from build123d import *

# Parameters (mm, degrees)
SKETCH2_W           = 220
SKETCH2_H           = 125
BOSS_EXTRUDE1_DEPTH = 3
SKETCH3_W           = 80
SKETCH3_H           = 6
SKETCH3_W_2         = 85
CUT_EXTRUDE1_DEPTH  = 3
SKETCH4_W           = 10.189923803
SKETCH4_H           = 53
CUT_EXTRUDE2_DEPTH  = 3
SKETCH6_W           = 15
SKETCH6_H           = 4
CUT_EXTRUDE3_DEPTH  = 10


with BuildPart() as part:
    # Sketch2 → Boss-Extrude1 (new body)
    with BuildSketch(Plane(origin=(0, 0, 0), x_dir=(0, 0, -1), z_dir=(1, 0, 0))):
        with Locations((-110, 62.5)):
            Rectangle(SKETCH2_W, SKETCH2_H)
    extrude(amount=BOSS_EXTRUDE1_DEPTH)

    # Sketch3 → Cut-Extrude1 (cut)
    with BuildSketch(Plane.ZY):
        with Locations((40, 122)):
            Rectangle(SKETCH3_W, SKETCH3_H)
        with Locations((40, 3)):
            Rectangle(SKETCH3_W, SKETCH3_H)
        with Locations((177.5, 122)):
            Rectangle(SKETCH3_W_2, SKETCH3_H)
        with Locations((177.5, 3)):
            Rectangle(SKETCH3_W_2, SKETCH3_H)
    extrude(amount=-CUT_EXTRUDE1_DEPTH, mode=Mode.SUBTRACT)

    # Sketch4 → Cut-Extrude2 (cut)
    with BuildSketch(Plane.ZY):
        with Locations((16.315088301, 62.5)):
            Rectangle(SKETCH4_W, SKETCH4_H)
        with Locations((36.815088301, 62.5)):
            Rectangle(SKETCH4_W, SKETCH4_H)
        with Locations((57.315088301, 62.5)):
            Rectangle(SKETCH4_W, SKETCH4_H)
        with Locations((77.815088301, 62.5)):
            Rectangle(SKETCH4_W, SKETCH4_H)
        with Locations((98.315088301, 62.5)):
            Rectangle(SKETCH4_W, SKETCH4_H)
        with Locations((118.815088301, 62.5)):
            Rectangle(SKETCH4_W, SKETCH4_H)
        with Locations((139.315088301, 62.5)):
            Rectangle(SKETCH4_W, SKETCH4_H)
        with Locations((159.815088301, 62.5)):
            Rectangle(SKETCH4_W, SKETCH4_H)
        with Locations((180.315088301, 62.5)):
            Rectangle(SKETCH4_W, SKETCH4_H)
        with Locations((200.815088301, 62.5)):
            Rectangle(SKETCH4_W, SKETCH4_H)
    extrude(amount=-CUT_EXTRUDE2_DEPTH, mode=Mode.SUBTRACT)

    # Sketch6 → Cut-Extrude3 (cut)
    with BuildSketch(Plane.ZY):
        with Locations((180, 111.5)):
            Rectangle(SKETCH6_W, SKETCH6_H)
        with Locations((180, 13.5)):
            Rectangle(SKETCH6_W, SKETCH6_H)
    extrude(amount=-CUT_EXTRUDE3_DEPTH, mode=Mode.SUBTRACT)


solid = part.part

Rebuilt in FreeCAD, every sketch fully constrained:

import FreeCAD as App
import Part
import Sketcher
Q = App.Units.Quantity

doc = App.newDocument("Part")
body = doc.addObject("PartDesign::Body", "Body")

sketch1 = body.newObject("Sketcher::SketchObject", "Sketch")
sketch1.AttachmentSupport = (doc.getObject("YZ_Plane"), [""])
sketch1.MapMode = "FlatFace"
sketch1.addGeometry([
    Part.LineSegment(App.Vector(125, 220, 0), App.Vector(0, 220, 0)),
    Part.LineSegment(App.Vector(0, 220, 0), App.Vector(0, 0, 0)),
    Part.LineSegment(App.Vector(0, 0, 0), App.Vector(125, 0, 0)),
    Part.LineSegment(App.Vector(125, 0, 0), App.Vector(125, 220, 0)),
], False)
sketch1.addConstraint([
    Sketcher.Constraint("Coincident", 0, 2, 1, 1),
    Sketcher.Constraint("Coincident", 1, 2, 2, 1),
    Sketcher.Constraint("Coincident", 2, 2, 3, 1),
    Sketcher.Constraint("Coincident", 3, 2, 0, 1),
    Sketcher.Constraint("Horizontal", 0),
    Sketcher.Constraint("Vertical", 1),
    Sketcher.Constraint("Horizontal", 2),
    Sketcher.Constraint("Vertical", 3),
    Sketcher.Constraint("Coincident", 1, 2, -1, 1),
    Sketcher.Constraint("DistanceX", 0, 2, 0, 1, Q("125 mm")),
    Sketcher.Constraint("DistanceY", 1, 2, 1, 1, Q("220 mm")),
])
pad1 = body.newObject("PartDesign::Pad", "Pad")
pad1.Profile = sketch1
pad1.Length = 3

sketch2 = body.newObject("Sketcher::SketchObject", "Sketch001")
sketch2.AttachmentSupport = (doc.getObject("YZ_Plane"), [""])
sketch2.MapMode = "FlatFace"
sketch2.addGeometry([
    Part.LineSegment(App.Vector(125, 0, 0), App.Vector(119, 0, 0)),
    Part.LineSegment(App.Vector(119, 0, 0), App.Vector(119, 80, 0)),
    Part.LineSegment(App.Vector(119, 80, 0), App.Vector(125, 80, 0)),
    Part.LineSegment(App.Vector(125, 80, 0), App.Vector(125, 0, 0)),
    Part.LineSegment(App.Vector(6, 0, 0), App.Vector(0, 0, 0)),
    Part.LineSegment(App.Vector(0, 0, 0), App.Vector(0, 80, 0)),
    Part.LineSegment(App.Vector(0, 80, 0), App.Vector(6, 80, 0)),
    Part.LineSegment(App.Vector(6, 80, 0), App.Vector(6, 0, 0)),
    Part.LineSegment(App.Vector(125, 135, 0), App.Vector(119, 135, 0)),
    Part.LineSegment(App.Vector(119, 135, 0), App.Vector(119, 220, 0)),
    Part.LineSegment(App.Vector(119, 220, 0), App.Vector(125, 220, 0)),
    Part.LineSegment(App.Vector(125, 220, 0), App.Vector(125, 135, 0)),
    Part.LineSegment(App.Vector(6, 135, 0), App.Vector(0, 135, 0)),
    Part.LineSegment(App.Vector(0, 135, 0), App.Vector(0, 220, 0)),
    Part.LineSegment(App.Vector(0, 220, 0), App.Vector(6, 220, 0)),
    Part.LineSegment(App.Vector(6, 220, 0), App.Vector(6, 135, 0)),
], False)
sketch2.addConstraint([
    Sketcher.Constraint("Coincident", 0, 2, 1, 1),
    Sketcher.Constraint("Coincident", 1, 2, 2, 1),
    Sketcher.Constraint("Coincident", 2, 2, 3, 1),
    Sketcher.Constraint("Coincident", 3, 2, 0, 1),
    Sketcher.Constraint("Coincident", 4, 2, 5, 1),
    Sketcher.Constraint("Coincident", 5, 2, 6, 1),
    Sketcher.Constraint("Coincident", 6, 2, 7, 1),
    Sketcher.Constraint("Coincident", 7, 2, 4, 1),
    Sketcher.Constraint("Coincident", 8, 2, 9, 1),
    Sketcher.Constraint("Coincident", 9, 2, 10, 1),
    Sketcher.Constraint("Coincident", 10, 2, 11, 1),
    Sketcher.Constraint("Coincident", 11, 2, 8, 1),
    Sketcher.Constraint("Coincident", 12, 2, 13, 1),
    Sketcher.Constraint("Coincident", 13, 2, 14, 1),
    Sketcher.Constraint("Coincident", 14, 2, 15, 1),
    Sketcher.Constraint("Coincident", 15, 2, 12, 1),
    Sketcher.Constraint("Horizontal", 0),
    Sketcher.Constraint("Vertical", 1),
    Sketcher.Constraint("Horizontal", 2),
    Sketcher.Constraint("Vertical", 3),
    Sketcher.Constraint("Horizontal", 4),
    Sketcher.Constraint("Vertical", 5),
    Sketcher.Constraint("Horizontal", 6),
    Sketcher.Constraint("Vertical", 7),
    Sketcher.Constraint("Horizontal", 8),
    Sketcher.Constraint("Vertical", 9),
    Sketcher.Constraint("Horizontal", 10),
    Sketcher.Constraint("Vertical", 11),
    Sketcher.Constraint("Horizontal", 12),
    Sketcher.Constraint("Vertical", 13),
    Sketcher.Constraint("Horizontal", 14),
    Sketcher.Constraint("Vertical", 15),
    Sketcher.Constraint("Coincident", 4, 2, -1, 1),
    Sketcher.Constraint("PointOnObject", 0, 2, -1),
    Sketcher.Constraint("PointOnObject", 12, 2, -2),
    Sketcher.Constraint("Horizontal", 2, 2, 5, 2),
    Sketcher.Constraint("Horizontal", 11, 2, 12, 2),
    Sketcher.Constraint("Horizontal", 10, 2, 13, 2),
    Sketcher.Constraint("Vertical", 1, 2, 8, 2),
    Sketcher.Constraint("Vertical", 3, 2, 10, 2),
    Sketcher.Constraint("Vertical", 7, 2, 14, 2),
    Sketcher.Constraint("Equal", 2, 4),
    Sketcher.Constraint("DistanceX", 0, 2, 0, 1, Q("6 mm")),
    Sketcher.Constraint("DistanceY", 1, 1, 1, 2, Q("80 mm")),
    Sketcher.Constraint("DistanceY", 9, 1, 9, 2, Q("85 mm")),
    Sketcher.Constraint("DistanceX", -1, 1, 0, 2, Q("119 mm")),
    Sketcher.Constraint("DistanceY", -1, 1, 8, 2, Q("135 mm")),
])
pocket1 = body.newObject("PartDesign::Pocket", "Pocket")
pocket1.Profile = sketch2
pocket1.Length = 3
pocket1.Reversed = True

sketch3 = body.newObject("Sketcher::SketchObject", "Sketch002")
sketch3.AttachmentSupport = (doc.getObject("YZ_Plane"), [""])
sketch3.MapMode = "FlatFace"
sketch3.addGeometry([
    Part.LineSegment(App.Vector(89, 11, 0), App.Vector(36, 11, 0)),
    Part.LineSegment(App.Vector(36, 11, 0), App.Vector(36, 21, 0)),
    Part.LineSegment(App.Vector(36, 21, 0), App.Vector(89, 21, 0)),
    Part.LineSegment(App.Vector(89, 21, 0), App.Vector(89, 11, 0)),
    Part.LineSegment(App.Vector(89, 32, 0), App.Vector(36, 32, 0)),
    Part.LineSegment(App.Vector(36, 32, 0), App.Vector(36, 42, 0)),
    Part.LineSegment(App.Vector(36, 42, 0), App.Vector(89, 42, 0)),
    Part.LineSegment(App.Vector(89, 42, 0), App.Vector(89, 32, 0)),
    Part.LineSegment(App.Vector(89, 52, 0), App.Vector(36, 52, 0)),
    Part.LineSegment(App.Vector(36, 52, 0), App.Vector(36, 62, 0)),
    Part.LineSegment(App.Vector(36, 62, 0), App.Vector(89, 62, 0)),
    Part.LineSegment(App.Vector(89, 62, 0), App.Vector(89, 52, 0)),
    Part.LineSegment(App.Vector(89, 73, 0), App.Vector(36, 73, 0)),
    Part.LineSegment(App.Vector(36, 73, 0), App.Vector(36, 83, 0)),
    Part.LineSegment(App.Vector(36, 83, 0), App.Vector(89, 83, 0)),
    Part.LineSegment(App.Vector(89, 83, 0), App.Vector(89, 73, 0)),
    Part.LineSegment(App.Vector(89, 93, 0), App.Vector(36, 93, 0)),
    Part.LineSegment(App.Vector(36, 93, 0), App.Vector(36, 103, 0)),
    Part.LineSegment(App.Vector(36, 103, 0), App.Vector(89, 103, 0)),
    Part.LineSegment(App.Vector(89, 103, 0), App.Vector(89, 93, 0)),
    Part.LineSegment(App.Vector(89, 114, 0), App.Vector(36, 114, 0)),
    Part.LineSegment(App.Vector(36, 114, 0), App.Vector(36, 124, 0)),
    Part.LineSegment(App.Vector(36, 124, 0), App.Vector(89, 124, 0)),
    Part.LineSegment(App.Vector(89, 124, 0), App.Vector(89, 114, 0)),
    Part.LineSegment(App.Vector(89, 134, 0), App.Vector(36, 134, 0)),
    Part.LineSegment(App.Vector(36, 134, 0), App.Vector(36, 144, 0)),
    Part.LineSegment(App.Vector(36, 144, 0), App.Vector(89, 144, 0)),
    Part.LineSegment(App.Vector(89, 144, 0), App.Vector(89, 134, 0)),
    Part.LineSegment(App.Vector(89, 155, 0), App.Vector(36, 155, 0)),
    Part.LineSegment(App.Vector(36, 155, 0), App.Vector(36, 165, 0)),
    Part.LineSegment(App.Vector(36, 165, 0), App.Vector(89, 165, 0)),
    Part.LineSegment(App.Vector(89, 165, 0), App.Vector(89, 155, 0)),
    Part.LineSegment(App.Vector(89, 175, 0), App.Vector(36, 175, 0)),
    Part.LineSegment(App.Vector(36, 175, 0), App.Vector(36, 185, 0)),
    Part.LineSegment(App.Vector(36, 185, 0), App.Vector(89, 185, 0)),
    Part.LineSegment(App.Vector(89, 185, 0), App.Vector(89, 175, 0)),
    Part.LineSegment(App.Vector(89, 196, 0), App.Vector(36, 196, 0)),
    Part.LineSegment(App.Vector(36, 196, 0), App.Vector(36, 206, 0)),
    Part.LineSegment(App.Vector(36, 206, 0), App.Vector(89, 206, 0)),
    Part.LineSegment(App.Vector(89, 206, 0), App.Vector(89, 196, 0)),
], False)
sketch3.addConstraint([
    Sketcher.Constraint("Coincident", 0, 2, 1, 1),
    Sketcher.Constraint("Coincident", 1, 2, 2, 1),
    Sketcher.Constraint("Coincident", 2, 2, 3, 1),
    Sketcher.Constraint("Coincident", 3, 2, 0, 1),
    Sketcher.Constraint("Coincident", 4, 2, 5, 1),
    Sketcher.Constraint("Coincident", 5, 2, 6, 1),
    Sketcher.Constraint("Coincident", 6, 2, 7, 1),
    Sketcher.Constraint("Coincident", 7, 2, 4, 1),
    Sketcher.Constraint("Coincident", 8, 2, 9, 1),
    Sketcher.Constraint("Coincident", 9, 2, 10, 1),
    Sketcher.Constraint("Coincident", 10, 2, 11, 1),
    Sketcher.Constraint("Coincident", 11, 2, 8, 1),
    Sketcher.Constraint("Coincident", 12, 2, 13, 1),
    Sketcher.Constraint("Coincident", 13, 2, 14, 1),
    Sketcher.Constraint("Coincident", 14, 2, 15, 1),
    Sketcher.Constraint("Coincident", 15, 2, 12, 1),
    Sketcher.Constraint("Coincident", 16, 2, 17, 1),
    Sketcher.Constraint("Coincident", 17, 2, 18, 1),
    Sketcher.Constraint("Coincident", 18, 2, 19, 1),
    Sketcher.Constraint("Coincident", 19, 2, 16, 1),
    Sketcher.Constraint("Coincident", 20, 2, 21, 1),
    Sketcher.Constraint("Coincident", 21, 2, 22, 1),
    Sketcher.Constraint("Coincident", 22, 2, 23, 1),
    Sketcher.Constraint("Coincident", 23, 2, 20, 1),
    Sketcher.Constraint("Coincident", 24, 2, 25, 1),
    Sketcher.Constraint("Coincident", 25, 2, 26, 1),
    Sketcher.Constraint("Coincident", 26, 2, 27, 1),
    Sketcher.Constraint("Coincident", 27, 2, 24, 1),
    Sketcher.Constraint("Coincident", 28, 2, 29, 1),
    Sketcher.Constraint("Coincident", 29, 2, 30, 1),
    Sketcher.Constraint("Coincident", 30, 2, 31, 1),
    Sketcher.Constraint("Coincident", 31, 2, 28, 1),
    Sketcher.Constraint("Coincident", 32, 2, 33, 1),
    Sketcher.Constraint("Coincident", 33, 2, 34, 1),
    Sketcher.Constraint("Coincident", 34, 2, 35, 1),
    Sketcher.Constraint("Coincident", 35, 2, 32, 1),
    Sketcher.Constraint("Coincident", 36, 2, 37, 1),
    Sketcher.Constraint("Coincident", 37, 2, 38, 1),
    Sketcher.Constraint("Coincident", 38, 2, 39, 1),
    Sketcher.Constraint("Coincident", 39, 2, 36, 1),
    Sketcher.Constraint("Horizontal", 0),
    Sketcher.Constraint("Vertical", 1),
    Sketcher.Constraint("Horizontal", 2),
    Sketcher.Constraint("Vertical", 3),
    Sketcher.Constraint("Horizontal", 4),
    Sketcher.Constraint("Vertical", 5),
    Sketcher.Constraint("Horizontal", 6),
    Sketcher.Constraint("Vertical", 7),
    Sketcher.Constraint("Horizontal", 8),
    Sketcher.Constraint("Vertical", 9),
    Sketcher.Constraint("Horizontal", 10),
    Sketcher.Constraint("Vertical", 11),
    Sketcher.Constraint("Horizontal", 12),
    Sketcher.Constraint("Vertical", 13),
    Sketcher.Constraint("Horizontal", 14),
    Sketcher.Constraint("Vertical", 15),
    Sketcher.Constraint("Horizontal", 16),
    Sketcher.Constraint("Vertical", 17),
    Sketcher.Constraint("Horizontal", 18),
    Sketcher.Constraint("Vertical", 19),
    Sketcher.Constraint("Horizontal", 20),
    Sketcher.Constraint("Vertical", 21),
    Sketcher.Constraint("Horizontal", 22),
    Sketcher.Constraint("Vertical", 23),
    Sketcher.Constraint("Horizontal", 24),
    Sketcher.Constraint("Vertical", 25),
    Sketcher.Constraint("Horizontal", 26),
    Sketcher.Constraint("Vertical", 27),
    Sketcher.Constraint("Horizontal", 28),
    Sketcher.Constraint("Vertical", 29),
    Sketcher.Constraint("Horizontal", 30),
    Sketcher.Constraint("Vertical", 31),
    Sketcher.Constraint("Horizontal", 32),
    Sketcher.Constraint("Vertical", 33),
    Sketcher.Constraint("Horizontal", 34),
    Sketcher.Constraint("Vertical", 35),
    Sketcher.Constraint("Horizontal", 36),
    Sketcher.Constraint("Vertical", 37),
    Sketcher.Constraint("Horizontal", 38),
    Sketcher.Constraint("Vertical", 39),
    Sketcher.Constraint("Vertical", 1, 2, 4, 2),
    Sketcher.Constraint("Vertical", 3, 2, 6, 2),
    Sketcher.Constraint("Vertical", 5, 2, 8, 2),
    Sketcher.Constraint("Vertical", 7, 2, 10, 2),
    Sketcher.Constraint("Vertical", 9, 2, 12, 2),
    Sketcher.Constraint("Vertical", 11, 2, 14, 2),
    Sketcher.Constraint("Vertical", 13, 2, 16, 2),
    Sketcher.Constraint("Vertical", 15, 2, 18, 2),
    Sketcher.Constraint("Vertical", 17, 2, 20, 2),
    Sketcher.Constraint("Vertical", 19, 2, 22, 2),
    Sketcher.Constraint("Vertical", 21, 2, 24, 2),
    Sketcher.Constraint("Vertical", 23, 2, 26, 2),
    Sketcher.Constraint("Vertical", 25, 2, 28, 2),
    Sketcher.Constraint("Vertical", 27, 2, 30, 2),
    Sketcher.Constraint("Vertical", 29, 2, 32, 2),
    Sketcher.Constraint("Vertical", 31, 2, 34, 2),
    Sketcher.Constraint("Vertical", 33, 2, 36, 2),
    Sketcher.Constraint("Vertical", 35, 2, 38, 2),
    Sketcher.Constraint("Equal", 3, 5),
    Sketcher.Constraint("Equal", 7, 9),
    Sketcher.Constraint("Equal", 11, 13),
    Sketcher.Constraint("Equal", 15, 17),
    Sketcher.Constraint("Equal", 19, 21),
    Sketcher.Constraint("Equal", 23, 25),
    Sketcher.Constraint("Equal", 27, 29),
    Sketcher.Constraint("Equal", 31, 33),
    Sketcher.Constraint("Equal", 35, 37),
    Sketcher.Constraint("DistanceX", 0, 2, 0, 1, Q("53 mm")),
    Sketcher.Constraint("DistanceX", -1, 1, 0, 2, Q("36 mm")),
    Sketcher.Constraint("DistanceY", 0, 2, 8, 2, Q("41 mm")),
    Sketcher.Constraint("DistanceY", 4, 2, 12, 2, Q("41 mm")),
    Sketcher.Constraint("DistanceY", 8, 2, 16, 2, Q("41 mm")),
    Sketcher.Constraint("DistanceY", 12, 2, 20, 2, Q("41 mm")),
    Sketcher.Constraint("DistanceY", 16, 2, 24, 2, Q("41 mm")),
    Sketcher.Constraint("DistanceY", 20, 2, 28, 2, Q("41 mm")),
    Sketcher.Constraint("DistanceY", 24, 2, 32, 2, Q("41 mm")),
    Sketcher.Constraint("DistanceY", 28, 2, 36, 2, Q("41 mm")),
    Sketcher.Constraint("DistanceY", 0, 2, 4, 2, Q("20.5 mm")),
    Sketcher.Constraint("DistanceY", 1, 1, 1, 2, Q("10.189924 mm")),
    Sketcher.Constraint("DistanceY", -1, 1, 1, 2, Q("21.41005 mm")),
])
pocket2 = body.newObject("PartDesign::Pocket", "Pocket001")
pocket2.Profile = sketch3
pocket2.Length = 3
pocket2.Reversed = True

sketch4 = body.newObject("Sketcher::SketchObject", "Sketch003")
sketch4.AttachmentSupport = (doc.getObject("YZ_Plane"), [""])
sketch4.MapMode = "FlatFace"
sketch4.addGeometry([
    Part.LineSegment(App.Vector(113.5, 172.5, 0), App.Vector(109.5, 172.5, 0)),
    Part.LineSegment(App.Vector(109.5, 172.5, 0), App.Vector(109.5, 187.5, 0)),
    Part.LineSegment(App.Vector(109.5, 187.5, 0), App.Vector(113.5, 187.5, 0)),
    Part.LineSegment(App.Vector(113.5, 187.5, 0), App.Vector(113.5, 172.5, 0)),
    Part.LineSegment(App.Vector(15.5, 172.5, 0), App.Vector(11.5, 172.5, 0)),
    Part.LineSegment(App.Vector(11.5, 172.5, 0), App.Vector(11.5, 187.5, 0)),
    Part.LineSegment(App.Vector(11.5, 187.5, 0), App.Vector(15.5, 187.5, 0)),
    Part.LineSegment(App.Vector(15.5, 187.5, 0), App.Vector(15.5, 172.5, 0)),
], False)
sketch4.addConstraint([
    Sketcher.Constraint("Coincident", 0, 2, 1, 1),
    Sketcher.Constraint("Coincident", 1, 2, 2, 1),
    Sketcher.Constraint("Coincident", 2, 2, 3, 1),
    Sketcher.Constraint("Coincident", 3, 2, 0, 1),
    Sketcher.Constraint("Coincident", 4, 2, 5, 1),
    Sketcher.Constraint("Coincident", 5, 2, 6, 1),
    Sketcher.Constraint("Coincident", 6, 2, 7, 1),
    Sketcher.Constraint("Coincident", 7, 2, 4, 1),
    Sketcher.Constraint("Horizontal", 0),
    Sketcher.Constraint("Vertical", 1),
    Sketcher.Constraint("Horizontal", 2),
    Sketcher.Constraint("Vertical", 3),
    Sketcher.Constraint("Horizontal", 4),
    Sketcher.Constraint("Vertical", 5),
    Sketcher.Constraint("Horizontal", 6),
    Sketcher.Constraint("Vertical", 7),
    Sketcher.Constraint("Horizontal", 3, 2, 4, 2),
    Sketcher.Constraint("Horizontal", 2, 2, 5, 2),
    Sketcher.Constraint("Equal", 2, 4),
    Sketcher.Constraint("DistanceX", 0, 2, 0, 1, Q("4 mm")),
    Sketcher.Constraint("DistanceY", 1, 1, 1, 2, Q("15 mm")),
    Sketcher.Constraint("DistanceX", 4, 2, 0, 2, Q("98 mm")),
    Sketcher.Constraint("DistanceX", -1, 1, 0, 2, Q("109.5 mm")),
    Sketcher.Constraint("DistanceY", -1, 1, 0, 2, Q("172.5 mm")),
])
pocket3 = body.newObject("PartDesign::Pocket", "Pocket002")
pocket3.Profile = sketch4
pocket3.Length = 10
pocket3.Reversed = True

doc.recompute()
